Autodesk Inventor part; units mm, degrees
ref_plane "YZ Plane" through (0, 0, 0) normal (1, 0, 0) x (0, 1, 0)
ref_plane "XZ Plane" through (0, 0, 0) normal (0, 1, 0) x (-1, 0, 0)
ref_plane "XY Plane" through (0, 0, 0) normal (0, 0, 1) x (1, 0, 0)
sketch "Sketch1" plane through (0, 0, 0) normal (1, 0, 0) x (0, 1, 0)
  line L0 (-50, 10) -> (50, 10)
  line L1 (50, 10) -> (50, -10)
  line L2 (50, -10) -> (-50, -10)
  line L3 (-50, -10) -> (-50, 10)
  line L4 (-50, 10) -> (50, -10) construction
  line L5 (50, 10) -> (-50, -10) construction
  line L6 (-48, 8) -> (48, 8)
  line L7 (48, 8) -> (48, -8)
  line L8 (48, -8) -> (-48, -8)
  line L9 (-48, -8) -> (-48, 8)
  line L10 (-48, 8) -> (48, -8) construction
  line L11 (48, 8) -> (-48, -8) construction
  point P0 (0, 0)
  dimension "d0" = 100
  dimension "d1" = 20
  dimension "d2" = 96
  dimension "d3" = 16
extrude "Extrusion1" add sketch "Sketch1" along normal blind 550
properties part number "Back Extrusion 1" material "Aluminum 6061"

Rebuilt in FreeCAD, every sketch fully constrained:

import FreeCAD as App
import Part
import Sketcher
from FreeCAD import Vector


def add_polygon(sketch, points):
    """Adds a closed chain of lines whose ends are joined by coincident constraints."""
    first, n = sketch.GeometryCount, len(points)
    for a, b in zip(points, points[1:] + points[:1]):
        sketch.addGeometry(Part.LineSegment(App.Vector(*a, 0), App.Vector(*b, 0)), False)
    for i in range(n):
        sketch.addConstraint(Sketcher.Constraint("Coincident", first + i, 2, first + (i + 1) % n, 1))

doc = App.newDocument("Part")
body = doc.addObject("PartDesign::Body", "Body")

sketch1 = body.newObject("Sketcher::SketchObject", "Sketch")
sketch1.AttachmentSupport = (doc.getObject("YZ_Plane"), [""])
sketch1.MapMode = "FlatFace"
add_polygon(sketch1, [(50, 10), (-50, 10), (-50, -10), (50, -10)])
add_polygon(sketch1, [(-48, -8), (-48, 8), (48, 8), (48, -8)])
sketch1.addConstraint([
    Sketcher.Constraint("Horizontal", 0),
    Sketcher.Constraint("Vertical", 1),
    Sketcher.Constraint("Horizontal", 2),
    Sketcher.Constraint("Vertical", 3),
    Sketcher.Constraint("Vertical", 4),
    Sketcher.Constraint("Horizontal", 5),
    Sketcher.Constraint("Vertical", 6),
    Sketcher.Constraint("Horizontal", 7),
    Sketcher.Constraint("Symmetric", 0, 2, 2, 2, -1, 1),
    Sketcher.Constraint("Symmetric", 4, 2, 6, 2, -1, 1),
    Sketcher.Constraint("DistanceX", 0, 2, 0, 1, 100.0),
    Sketcher.Constraint("DistanceX", 5, 1, 5, 2, 96.0),
    Sketcher.Constraint("DistanceY", 1, 2, 1, 1, 20.0),
    Sketcher.Constraint("DistanceY", 4, 1, 4, 2, 16.0),
])
pad1 = body.newObject("PartDesign::Pad", "Pad")
pad1.Profile = sketch1
pad1.Length = 550

doc.recompute()
